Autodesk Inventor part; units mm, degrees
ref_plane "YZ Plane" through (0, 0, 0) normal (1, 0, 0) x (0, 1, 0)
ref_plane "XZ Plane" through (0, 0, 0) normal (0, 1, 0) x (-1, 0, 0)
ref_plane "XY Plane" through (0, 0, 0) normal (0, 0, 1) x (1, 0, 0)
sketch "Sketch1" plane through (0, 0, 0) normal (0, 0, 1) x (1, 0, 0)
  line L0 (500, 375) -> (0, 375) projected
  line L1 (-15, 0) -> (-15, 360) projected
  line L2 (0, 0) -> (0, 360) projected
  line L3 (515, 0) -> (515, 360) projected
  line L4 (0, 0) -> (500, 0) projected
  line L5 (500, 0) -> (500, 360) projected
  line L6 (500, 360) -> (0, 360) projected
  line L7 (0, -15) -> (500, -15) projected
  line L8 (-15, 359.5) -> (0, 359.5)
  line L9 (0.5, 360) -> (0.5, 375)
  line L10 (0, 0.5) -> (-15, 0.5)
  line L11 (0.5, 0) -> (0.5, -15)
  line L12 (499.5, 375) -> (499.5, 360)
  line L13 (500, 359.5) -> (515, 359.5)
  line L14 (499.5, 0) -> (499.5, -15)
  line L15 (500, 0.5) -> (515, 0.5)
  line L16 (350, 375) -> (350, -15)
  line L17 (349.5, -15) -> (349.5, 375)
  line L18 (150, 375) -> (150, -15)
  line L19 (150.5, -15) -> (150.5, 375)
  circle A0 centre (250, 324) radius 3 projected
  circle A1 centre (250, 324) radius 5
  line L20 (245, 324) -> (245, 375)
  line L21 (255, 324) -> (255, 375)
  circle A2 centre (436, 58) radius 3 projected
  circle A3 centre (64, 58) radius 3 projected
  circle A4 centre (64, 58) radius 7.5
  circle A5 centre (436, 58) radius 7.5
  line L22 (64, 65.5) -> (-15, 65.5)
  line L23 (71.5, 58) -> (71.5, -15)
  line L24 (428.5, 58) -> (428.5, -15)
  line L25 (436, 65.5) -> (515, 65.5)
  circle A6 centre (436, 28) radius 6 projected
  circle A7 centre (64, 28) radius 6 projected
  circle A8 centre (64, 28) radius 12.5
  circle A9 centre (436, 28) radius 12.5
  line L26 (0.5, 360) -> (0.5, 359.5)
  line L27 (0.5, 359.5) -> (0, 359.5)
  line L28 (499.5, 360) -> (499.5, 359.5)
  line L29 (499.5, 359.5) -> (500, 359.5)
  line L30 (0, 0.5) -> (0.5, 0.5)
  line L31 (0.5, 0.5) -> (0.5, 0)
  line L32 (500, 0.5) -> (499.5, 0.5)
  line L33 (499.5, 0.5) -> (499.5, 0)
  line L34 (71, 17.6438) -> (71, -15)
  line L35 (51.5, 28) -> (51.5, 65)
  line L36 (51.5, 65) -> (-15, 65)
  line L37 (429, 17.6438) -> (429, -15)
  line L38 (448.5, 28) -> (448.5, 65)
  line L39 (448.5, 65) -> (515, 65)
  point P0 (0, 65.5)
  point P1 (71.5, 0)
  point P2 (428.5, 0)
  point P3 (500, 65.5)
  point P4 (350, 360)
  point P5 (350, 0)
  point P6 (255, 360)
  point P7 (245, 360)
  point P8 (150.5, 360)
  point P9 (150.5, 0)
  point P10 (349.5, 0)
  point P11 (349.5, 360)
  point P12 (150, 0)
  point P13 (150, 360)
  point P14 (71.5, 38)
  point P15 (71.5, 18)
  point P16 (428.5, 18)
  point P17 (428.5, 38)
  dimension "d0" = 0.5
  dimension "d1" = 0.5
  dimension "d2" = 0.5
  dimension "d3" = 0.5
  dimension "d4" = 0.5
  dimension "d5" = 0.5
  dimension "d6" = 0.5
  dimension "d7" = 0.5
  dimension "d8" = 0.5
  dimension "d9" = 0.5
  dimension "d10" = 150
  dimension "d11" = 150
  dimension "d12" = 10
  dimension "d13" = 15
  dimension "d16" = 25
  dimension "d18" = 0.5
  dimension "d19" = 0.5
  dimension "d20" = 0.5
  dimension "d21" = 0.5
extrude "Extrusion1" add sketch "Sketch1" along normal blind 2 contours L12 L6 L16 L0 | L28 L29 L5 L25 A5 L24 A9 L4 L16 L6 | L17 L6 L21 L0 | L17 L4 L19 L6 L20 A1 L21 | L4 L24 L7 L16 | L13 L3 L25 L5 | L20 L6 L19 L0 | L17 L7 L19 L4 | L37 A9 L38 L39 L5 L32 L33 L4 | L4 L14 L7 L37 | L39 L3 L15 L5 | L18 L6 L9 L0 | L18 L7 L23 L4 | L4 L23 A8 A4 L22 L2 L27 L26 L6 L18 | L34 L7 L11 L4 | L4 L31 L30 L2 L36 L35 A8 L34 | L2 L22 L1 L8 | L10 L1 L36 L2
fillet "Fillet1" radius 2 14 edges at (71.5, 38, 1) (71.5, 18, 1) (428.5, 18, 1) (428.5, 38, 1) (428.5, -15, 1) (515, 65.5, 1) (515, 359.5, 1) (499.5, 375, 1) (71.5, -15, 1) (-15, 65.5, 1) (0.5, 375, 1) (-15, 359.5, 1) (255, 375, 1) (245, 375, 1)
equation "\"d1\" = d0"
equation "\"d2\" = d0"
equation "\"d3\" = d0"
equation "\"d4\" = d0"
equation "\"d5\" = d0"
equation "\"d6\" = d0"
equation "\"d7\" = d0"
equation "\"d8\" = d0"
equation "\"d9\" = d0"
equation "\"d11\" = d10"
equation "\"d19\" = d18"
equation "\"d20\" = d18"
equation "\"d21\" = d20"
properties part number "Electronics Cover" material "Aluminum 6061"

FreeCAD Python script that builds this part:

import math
import FreeCAD as App
import Part
import Sketcher


def edges_at(feature, points):
    """Names of the edges that pass closest to the given points."""
    edges = feature.Shape.Edges
    near = lambda p: min(range(len(edges)), key=lambda i: edges[i].distToShape(Part.Vertex(*p))[0])
    return sorted({f"Edge{near(p) + 1}" for p in points})

doc = App.newDocument("Part")
body = doc.addObject("PartDesign::Body", "Body")
body.AllowCompound = True

# Sketch on XY plane
sketch1 = doc.addObject("Sketcher::SketchObject", "Sketch")
body.addObject(sketch1)
sketch1.AttachmentSupport = (doc.XY_Plane, [""])
sketch1.MapMode = "FlatFace"
sketch1.addGeometry(Part.LineSegment(App.Vector(499.5, 375, 0), App.Vector(350, 375, 0)), False)
sketch1.addGeometry(Part.LineSegment(App.Vector(350, 375, 0), App.Vector(350, -15, 0)), False)
sketch1.addGeometry(Part.LineSegment(App.Vector(350, -15, 0), App.Vector(428.5, -15, 0)), False)
sketch1.addGeometry(Part.LineSegment(App.Vector(428.5, -15, 0), App.Vector(428.5, 18, 0)), False)
sketch1.addGeometry(Part.ArcOfCircle(Part.Circle(App.Vector(436, 28, 0), App.Vector(0, 0, 1), 12.5), math.radians(126.869898), math.radians(233.130102)), False)
sketch1.addGeometry(Part.LineSegment(App.Vector(428.5, 38, 0), App.Vector(428.5, 58, 0)), False)
sketch1.addGeometry(Part.ArcOfCircle(Part.Circle(App.Vector(436, 58, 0), App.Vector(0, 0, 1), 7.5), math.radians(90), math.radians(180)), False)
sketch1.addGeometry(Part.LineSegment(App.Vector(436, 65.5, 0), App.Vector(515, 65.5, 0)), False)
sketch1.addGeometry(Part.LineSegment(App.Vector(515, 65.5, 0), App.Vector(515, 359.5, 0)), False)
sketch1.addGeometry(Part.LineSegment(App.Vector(515, 359.5, 0), App.Vector(499.5, 359.5, 0)), False)
sketch1.addGeometry(Part.LineSegment(App.Vector(499.5, 359.5, 0), App.Vector(499.5, 375, 0)), False)
sketch1.addGeometry(Part.LineSegment(App.Vector(349.5, 375, 0), App.Vector(255, 375, 0)), False)
sketch1.addGeometry(Part.LineSegment(App.Vector(255, 375, 0), App.Vector(255, 324, 0)), False)
sketch1.addGeometry(Part.ArcOfCircle(Part.Circle(App.Vector(250, 324, 0), App.Vector(0, 0, 1), 5), math.radians(180), math.radians(360)), False)
sketch1.addGeometry(Part.LineSegment(App.Vector(245, 324, 0), App.Vector(245, 375, 0)), False)
sketch1.addGeometry(Part.LineSegment(App.Vector(245, 375, 0), App.Vector(150.5, 375, 0)), False)
sketch1.addGeometry(Part.LineSegment(App.Vector(150.5, 375, 0), App.Vector(150.5, -15, 0)), False)
sketch1.addGeometry(Part.LineSegment(App.Vector(150.5, -15, 0), App.Vector(349.5, -15, 0)), False)
sketch1.addGeometry(Part.LineSegment(App.Vector(349.5, -15, 0), App.Vector(349.5, 375, 0)), False)
sketch1.addGeometry(Part.LineSegment(App.Vector(429, 17.6438, 0), App.Vector(429, -15, 0)), False)
sketch1.addGeometry(Part.LineSegment(App.Vector(429, -15, 0), App.Vector(499.5, -15, 0)), False)
sketch1.addGeometry(Part.LineSegment(App.Vector(499.5, -15, 0), App.Vector(499.5, 0.5, 0)), False)
sketch1.addGeometry(Part.LineSegment(App.Vector(499.5, 0.5, 0), App.Vector(515, 0.5, 0)), False)
sketch1.addGeometry(Part.LineSegment(App.Vector(515, 0.5, 0), App.Vector(515, 65, 0)), False)
sketch1.addGeometry(Part.LineSegment(App.Vector(515, 65, 0), App.Vector(448.5, 65, 0)), False)
sketch1.addGeometry(Part.LineSegment(App.Vector(448.5, 65, 0), App.Vector(448.5, 28, 0)), False)
sketch1.addGeometry(Part.ArcOfCircle(Part.Circle(App.Vector(436, 28, 0), App.Vector(0, 0, 1), 12.5), math.radians(-124.055689), math.radians(0)), False)
sketch1.addGeometry(Part.LineSegment(App.Vector(150, 375, 0), App.Vector(0.5, 375, 0)), False)
sketch1.addGeometry(Part.LineSegment(App.Vector(0.5, 375, 0), App.Vector(0.5, 359.5, 0)), False)
sketch1.addGeometry(Part.LineSegment(App.Vector(0.5, 359.5, 0), App.Vector(-15, 359.5, 0)), False)
sketch1.addGeometry(Part.LineSegment(App.Vector(-15, 359.5, 0), App.Vector(-15, 65.5, 0)), False)
sketch1.addGeometry(Part.LineSegment(App.Vector(-15, 65.5, 0), App.Vector(64, 65.5, 0)), False)
sketch1.addGeometry(Part.ArcOfCircle(Part.Circle(App.Vector(64, 58, 0), App.Vector(0, 0, 1), 7.5), math.radians(0), math.radians(90)), False)
sketch1.addGeometry(Part.LineSegment(App.Vector(71.5, 58, 0), App.Vector(71.5, 38, 0)), False)
sketch1.addGeometry(Part.ArcOfCircle(Part.Circle(App.Vector(64, 28, 0), App.Vector(0, 0, 1), 12.5), math.radians(-53.130102), math.radians(53.130102)), False)
sketch1.addGeometry(Part.LineSegment(App.Vector(71.5, 18, 0), App.Vector(71.5, -15, 0)), False)
sketch1.addGeometry(Part.LineSegment(App.Vector(71.5, -15, 0), App.Vector(150, -15, 0)), False)
sketch1.addGeometry(Part.LineSegment(App.Vector(150, -15, 0), App.Vector(150, 375, 0)), False)
sketch1.addGeometry(Part.LineSegment(App.Vector(71, -15, 0), App.Vector(71, 17.6438, 0)), False)
sketch1.addGeometry(Part.ArcOfCircle(Part.Circle(App.Vector(64, 28, 0), App.Vector(0, 0, 1), 12.5), math.radians(180), math.radians(304.055689)), False)
sketch1.addGeometry(Part.LineSegment(App.Vector(51.5, 28, 0), App.Vector(51.5, 65, 0)), False)
sketch1.addGeometry(Part.LineSegment(App.Vector(51.5, 65, 0), App.Vector(-15, 65, 0)), False)
sketch1.addGeometry(Part.LineSegment(App.Vector(-15, 65, 0), App.Vector(-15, 0.5, 0)), False)
sketch1.addGeometry(Part.LineSegment(App.Vector(-15, 0.5, 0), App.Vector(0.5, 0.5, 0)), False)
sketch1.addGeometry(Part.LineSegment(App.Vector(0.5, 0.5, 0), App.Vector(0.5, -15, 0)), False)
sketch1.addGeometry(Part.LineSegment(App.Vector(0.5, -15, 0), App.Vector(71, -15, 0)), False)
sketch1.addConstraint(Sketcher.Constraint("Coincident", 0, 2, 1, 1))
sketch1.addConstraint(Sketcher.Constraint("Coincident", 1, 2, 2, 1))
sketch1.addConstraint(Sketcher.Constraint("Coincident", 2, 2, 3, 1))
sketch1.addConstraint(Sketcher.Constraint("Coincident", 3, 2, 4, 2))
sketch1.addConstraint(Sketcher.Constraint("Coincident", 4, 1, 5, 1))
sketch1.addConstraint(Sketcher.Constraint("Tangent", 5, 2, 6, 2))
sketch1.addConstraint(Sketcher.Constraint("Tangent", 6, 1, 7, 1))
sketch1.addConstraint(Sketcher.Constraint("Coincident", 7, 2, 8, 1))
sketch1.addConstraint(Sketcher.Constraint("Coincident", 8, 2, 9, 1))
sketch1.addConstraint(Sketcher.Constraint("Coincident", 9, 2, 10, 1))
sketch1.addConstraint(Sketcher.Constraint("Coincident", 10, 2, 0, 1))
sketch1.addConstraint(Sketcher.Constraint("Coincident", 11, 2, 12, 1))
sketch1.addConstraint(Sketcher.Constraint("Tangent", 12, 2, 13, 2))
sketch1.addConstraint(Sketcher.Constraint("Tangent", 13, 1, 14, 1))
sketch1.addConstraint(Sketcher.Constraint("Coincident", 14, 2, 15, 1))
sketch1.addConstraint(Sketcher.Constraint("Coincident", 15, 2, 16, 1))
sketch1.addConstraint(Sketcher.Constraint("Coincident", 16, 2, 17, 1))
sketch1.addConstraint(Sketcher.Constraint("Coincident", 17, 2, 18, 1))
sketch1.addConstraint(Sketcher.Constraint("Coincident", 18, 2, 11, 1))
sketch1.addConstraint(Sketcher.Constraint("Coincident", 19, 2, 20, 1))
sketch1.addConstraint(Sketcher.Constraint("Coincident", 20, 2, 21, 1))
sketch1.addConstraint(Sketcher.Constraint("Coincident", 21, 2, 22, 1))
sketch1.addConstraint(Sketcher.Constraint("Coincident", 22, 2, 23, 1))
sketch1.addConstraint(Sketcher.Constraint("Coincident", 23, 2, 24, 1))
sketch1.addConstraint(Sketcher.Constraint("Coincident", 24, 2, 25, 1))
sketch1.addConstraint(Sketcher.Constraint("Tangent", 25, 2, 26, 2))
sketch1.addConstraint(Sketcher.Constraint("Coincident", 26, 1, 19, 1))
sketch1.addConstraint(Sketcher.Constraint("Coincident", 27, 2, 28, 1))
sketch1.addConstraint(Sketcher.Constraint("Coincident", 28, 2, 29, 1))
sketch1.addConstraint(Sketcher.Constraint("Coincident", 29, 2, 30, 1))
sketch1.addConstraint(Sketcher.Constraint("Coincident", 30, 2, 31, 1))
sketch1.addConstraint(Sketcher.Constraint("Tangent", 31, 2, 32, 2))
sketch1.addConstraint(Sketcher.Constraint("Tangent", 32, 1, 33, 1))
sketch1.addConstraint(Sketcher.Constraint("Coincident", 33, 2, 34, 2))
sketch1.addConstraint(Sketcher.Constraint("Coincident", 34, 1, 35, 1))
sketch1.addConstraint(Sketcher.Constraint("Coincident", 35, 2, 36, 1))
sketch1.addConstraint(Sketcher.Constraint("Coincident", 36, 2, 37, 1))
sketch1.addConstraint(Sketcher.Constraint("Coincident", 37, 2, 27, 1))
sketch1.addConstraint(Sketcher.Constraint("Coincident", 38, 2, 39, 2))
sketch1.addConstraint(Sketcher.Constraint("Tangent", 39, 1, 40, 1))
sketch1.addConstraint(Sketcher.Constraint("Coincident", 40, 2, 41, 1))
sketch1.addConstraint(Sketcher.Constraint("Coincident", 41, 2, 42, 1))
sketch1.addConstraint(Sketcher.Constraint("Coincident", 42, 2, 43, 1))
sketch1.addConstraint(Sketcher.Constraint("Coincident", 43, 2, 44, 1))
sketch1.addConstraint(Sketcher.Constraint("Coincident", 44, 2, 45, 1))
sketch1.addConstraint(Sketcher.Constraint("Coincident", 45, 2, 38, 1))
sketch1.addConstraint(Sketcher.Constraint("Horizontal", 0))
sketch1.addConstraint(Sketcher.Constraint("Vertical", 1))
sketch1.addConstraint(Sketcher.Constraint("Horizontal", 2))
sketch1.addConstraint(Sketcher.Constraint("Vertical", 3))
sketch1.addConstraint(Sketcher.Constraint("Vertical", 5))
sketch1.addConstraint(Sketcher.Constraint("Horizontal", 7))
sketch1.addConstraint(Sketcher.Constraint("Vertical", 8))
sketch1.addConstraint(Sketcher.Constraint("Horizontal", 9))
sketch1.addConstraint(Sketcher.Constraint("Vertical", 10))
sketch1.addConstraint(Sketcher.Constraint("Horizontal", 11))
sketch1.addConstraint(Sketcher.Constraint("Vertical", 12))
sketch1.addConstraint(Sketcher.Constraint("Vertical", 14))
sketch1.addConstraint(Sketcher.Constraint("Horizontal", 15))
sketch1.addConstraint(Sketcher.Constraint("Vertical", 16))
sketch1.addConstraint(Sketcher.Constraint("Horizontal", 17))
sketch1.addConstraint(Sketcher.Constraint("Vertical", 18))
sketch1.addConstraint(Sketcher.Constraint("Vertical", 19))
sketch1.addConstraint(Sketcher.Constraint("Horizontal", 20))
sketch1.addConstraint(Sketcher.Constraint("Vertical", 21))
sketch1.addConstraint(Sketcher.Constraint("Horizontal", 22))
sketch1.addConstraint(Sketcher.Constraint("Vertical", 23))
sketch1.addConstraint(Sketcher.Constraint("Horizontal", 24))
sketch1.addConstraint(Sketcher.Constraint("Vertical", 25))
sketch1.addConstraint(Sketcher.Constraint("Horizontal", 27))
sketch1.addConstraint(Sketcher.Constraint("Vertical", 28))
sketch1.addConstraint(Sketcher.Constraint("Horizontal", 29))
sketch1.addConstraint(Sketcher.Constraint("Vertical", 30))
sketch1.addConstraint(Sketcher.Constraint("Horizontal", 31))
sketch1.addConstraint(Sketcher.Constraint("Vertical", 33))
sketch1.addConstraint(Sketcher.Constraint("Vertical", 35))
sketch1.addConstraint(Sketcher.Constraint("Horizontal", 36))
sketch1.addConstraint(Sketcher.Constraint("Vertical", 37))
sketch1.addConstraint(Sketcher.Constraint("Vertical", 38))
sketch1.addConstraint(Sketcher.Constraint("Vertical", 40))
sketch1.addConstraint(Sketcher.Constraint("Horizontal", 41))
sketch1.addConstraint(Sketcher.Constraint("Vertical", 42))
sketch1.addConstraint(Sketcher.Constraint("Horizontal", 43))
sketch1.addConstraint(Sketcher.Constraint("Vertical", 44))
sketch1.addConstraint(Sketcher.Constraint("Horizontal", 45))
sketch1.addConstraint(Sketcher.Constraint("Coincident", 26, 3, 4, 3))
sketch1.addConstraint(Sketcher.Constraint("Coincident", 39, 3, 34, 3))
sketch1.addConstraint(Sketcher.Constraint("Equal", 4, 26))
sketch1.addConstraint(Sketcher.Constraint("Equal", 6, 32))
sketch1.addConstraint(Sketcher.Constraint("Equal", 26, 34))
sketch1.addConstraint(Sketcher.Constraint("Equal", 34, 39))
sketch1.addConstraint(Sketcher.Constraint("Horizontal", 6, 3, 32, 3))
sketch1.addConstraint(Sketcher.Constraint("Horizontal", 26, 3, 34, 3))
sketch1.addConstraint(Sketcher.Constraint("Horizontal", 10, 2, 11, 2))
sketch1.addConstraint(Sketcher.Constraint("Horizontal", 11, 2, 14, 2))
sketch1.addConstraint(Sketcher.Constraint("Horizontal", 2, 2, 16, 2))
sketch1.addConstraint(Sketcher.Constraint("Horizontal", 17, 2, 19, 2))
sketch1.addConstraint(Sketcher.Constraint("Horizontal", 18, 2, 27, 2))
sketch1.addConstraint(Sketcher.Constraint("Horizontal", 9, 2, 28, 2))
sketch1.addConstraint(Sketcher.Constraint("Horizontal", 4, 1, 33, 2))
sketch1.addConstraint(Sketcher.Constraint("Horizontal", 3, 2, 34, 1))
sketch1.addConstraint(Sketcher.Constraint("Horizontal", 20, 2, 35, 2))
sketch1.addConstraint(Sketcher.Constraint("Horizontal", 26, 1, 38, 2))
sketch1.addConstraint(Sketcher.Constraint("Horizontal", 24, 2, 40, 2))
sketch1.addConstraint(Sketcher.Constraint("Horizontal", 22, 2, 42, 2))
sketch1.addConstraint(Sketcher.Constraint("Horizontal", 36, 2, 44, 2))
sketch1.addConstraint(Sketcher.Constraint("Vertical", 4, 3, 6, 3))
sketch1.addConstraint(Sketcher.Constraint("Vertical", 3, 2, 4, 1))
sketch1.addConstraint(Sketcher.Constraint("Vertical", 10, 2, 20, 2))
sketch1.addConstraint(Sketcher.Constraint("Vertical", 8, 2, 22, 2))
sketch1.addConstraint(Sketcher.Constraint("Vertical", 30, 2, 41, 2))
sketch1.addConstraint(Sketcher.Constraint("Vertical", 28, 2, 43, 2))
sketch1.addConstraint(Sketcher.Constraint("Equal", 11, 15))
sketch1.addConstraint(Sketcher.Constraint("Equal", 0, 27))
sketch1.addConstraint(Sketcher.Constraint("Equal", 22, 29))
sketch1.addConstraint(Sketcher.Constraint("Equal", 7, 31))
sketch1.addConstraint(Sketcher.Constraint("Equal", 43, 10))
sketch1.addConstraint(Sketcher.Constraint("Equal", 10, 21))
sketch1.addConstraint(Sketcher.Constraint("Radius", 13, 5.0))
sketch1.addConstraint(Sketcher.Constraint("Radius", 4, 12.5))
sketch1.addConstraint(Sketcher.Constraint("Radius", 6, 7.5))
sketch1.addConstraint(Sketcher.Constraint("DistanceY", 1, 2, -1, 1, 15.0))
sketch1.addConstraint(Sketcher.Constraint("DistanceX", 29, 2, -1, 1, 15.0))
sketch1.addConstraint(Sketcher.Constraint("DistanceX", -1, 1, 36, 2, 150.0))
sketch1.addConstraint(Sketcher.Constraint("DistanceX", 27, 2, 15, 2, 150.0))
sketch1.addConstraint(Sketcher.Constraint("DistanceY", -1, 1, 21, 2, 0.5))
sketch1.addConstraint(Sketcher.Constraint("DistanceX", 17, 2, 1, 2, 0.5))
sketch1.addConstraint(Sketcher.Constraint("DistanceX", 2, 2, 19, 2, 0.5))
sketch1.addConstraint(Sketcher.Constraint("DistanceY", 23, 2, 7, 2, 0.5))
sketch1.addConstraint(Sketcher.Constraint("DistanceX", 7, 1, 7, 2, 79.0))
sketch1.addConstraint(Sketcher.Constraint("DistanceX", 17, 1, 17, 2, 199.0))
sketch1.addConstraint(Sketcher.Constraint("DistanceY", 1, 2, 1, 1, 390.0))
sketch1.addConstraint(Sketcher.Constraint("DistanceY", 3, 1, 3, 2, 33.0))
sketch1.addConstraint(Sketcher.Constraint("DistanceY", 5, 1, 5, 2, 20.0))
sketch1.addConstraint(Sketcher.Constraint("DistanceY", 12, 2, 12, 1, 51.0))
pad1 = doc.addObject("PartDesign::Pad", "Pad")
body.addObject(pad1)
pad1.Profile = sketch1
pad1.Length = 2
doc.recompute()

fillet = doc.addObject("PartDesign::Fillet", "Fillet")
body.addObject(fillet)
fillet.Base = (pad1, edges_at(pad1, [
    (71.5, 38, 1),
    (71.5, 18, 1),
    (428.5, 18, 1),
    (428.5, 38, 1),
    (428.5, -15, 1),
    (515, 65.5, 1),
    (515, 359.5, 1),
    (499.5, 375, 1),
    (71.5, -15, 1),
    (-15, 65.5, 1),
    (0.5, 375, 1),
    (-15, 359.5, 1),
    (255, 375, 1),
    (245, 375, 1),
]))
fillet.Radius = 2

doc.recompute()
